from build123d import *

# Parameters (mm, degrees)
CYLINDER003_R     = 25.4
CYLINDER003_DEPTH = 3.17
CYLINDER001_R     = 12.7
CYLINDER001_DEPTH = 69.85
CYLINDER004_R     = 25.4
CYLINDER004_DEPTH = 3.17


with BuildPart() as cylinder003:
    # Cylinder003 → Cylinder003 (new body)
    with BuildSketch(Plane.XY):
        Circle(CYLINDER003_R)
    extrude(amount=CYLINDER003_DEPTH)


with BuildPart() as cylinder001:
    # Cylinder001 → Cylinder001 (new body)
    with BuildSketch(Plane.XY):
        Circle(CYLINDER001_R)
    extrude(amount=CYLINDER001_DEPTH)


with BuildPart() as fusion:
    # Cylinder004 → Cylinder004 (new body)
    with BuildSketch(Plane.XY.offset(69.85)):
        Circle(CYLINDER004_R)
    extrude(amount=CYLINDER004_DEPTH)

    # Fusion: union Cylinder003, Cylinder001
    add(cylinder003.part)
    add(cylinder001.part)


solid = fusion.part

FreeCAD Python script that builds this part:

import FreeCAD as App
import Part
import Sketcher
Q = App.Units.Quantity

doc = App.newDocument("Part")
params = doc.addObject("Spreadsheet::Sheet", "Params")
for row, (alias, value) in enumerate([
    ("sketch1_diameter", "2 in"),
    ("pad1_length", "3.17 mm"),
    ("sketch2_diameter", "1 in"),
    ("pad2_length", "2.75 in"),
    ("sketch3_diameter", "2 in"),
    ("pad3_length", "3.17 mm"),
], start=1):
    params.set(f"A{row}", alias)
    params.set(f"B{row}", "=" + value)
    params.setAlias(f"B{row}", alias)

body = doc.addObject("PartDesign::Body", "Body")

sketch1 = body.newObject("Sketcher::SketchObject", "Sketch")
sketch1.AttachmentSupport = (doc.getObject("XY_Plane"), [""])
sketch1.MapMode = "FlatFace"
sketch1.addGeometry(Part.Circle(App.Vector(0, 0, 0), App.Vector(0, 0, 1), 25), False)
sketch1.addConstraint([
    Sketcher.Constraint("Coincident", 0, 3, -1, 1),
    Sketcher.Constraint("Diameter", 0, Q("2 in")),
])
sketch1.setExpression("Constraints[1]", "Params.sketch1_diameter")
pad1 = body.newObject("PartDesign::Pad", "Pad")
pad1.Profile = sketch1
pad1.setExpression("Length", "Params.pad1_length")
body2 = doc.addObject("PartDesign::Body", "Body001")

sketch2 = body2.newObject("Sketcher::SketchObject", "Sketch001")
sketch2.AttachmentSupport = (doc.getObject("XY_Plane001"), [""])
sketch2.MapMode = "FlatFace"
sketch2.addGeometry(Part.Circle(App.Vector(0, 0, 0), App.Vector(0, 0, 1), 13), False)
sketch2.addConstraint([
    Sketcher.Constraint("Coincident", 0, 3, -1, 1),
    Sketcher.Constraint("Diameter", 0, Q("1 in")),
])
sketch2.setExpression("Constraints[1]", "Params.sketch2_diameter")
pad2 = body2.newObject("PartDesign::Pad", "Pad001")
pad2.Profile = sketch2
pad2.setExpression("Length", "Params.pad2_length")
body3 = doc.addObject("PartDesign::Body", "Body002")
body3.AllowCompound = True

sketch3 = body3.newObject("Sketcher::SketchObject", "Sketch002")
sketch3.AttachmentSupport = (doc.getObject("XY_Plane002"), [""])
sketch3.MapMode = "FlatFace"
sketch3.AttachmentOffset = App.Placement(App.Vector(0, 0, 2.75 * 25.4), App.Rotation())
sketch3.addGeometry(Part.Circle(App.Vector(0, 0, 0), App.Vector(0, 0, 1), 25), False)
sketch3.addConstraint([
    Sketcher.Constraint("Coincident", 0, 3, -1, 1),
    Sketcher.Constraint("Diameter", 0, Q("2 in")),
])
sketch3.setExpression("Constraints[1]", "Params.sketch3_diameter")
pad3 = body3.newObject("PartDesign::Pad", "Pad002")
pad3.Profile = sketch3
pad3.setExpression("Length", "Params.pad3_length")
doc.recompute()

boolean = body3.newObject("PartDesign::Boolean", "Boolean")
boolean.Type = "Fuse"
boolean.addObjects([body])
doc.recompute()

boolean2 = body3.newObject("PartDesign::Boolean", "Boolean001")
boolean2.Type = "Fuse"
boolean2.addObjects([body2])

doc.recompute()
